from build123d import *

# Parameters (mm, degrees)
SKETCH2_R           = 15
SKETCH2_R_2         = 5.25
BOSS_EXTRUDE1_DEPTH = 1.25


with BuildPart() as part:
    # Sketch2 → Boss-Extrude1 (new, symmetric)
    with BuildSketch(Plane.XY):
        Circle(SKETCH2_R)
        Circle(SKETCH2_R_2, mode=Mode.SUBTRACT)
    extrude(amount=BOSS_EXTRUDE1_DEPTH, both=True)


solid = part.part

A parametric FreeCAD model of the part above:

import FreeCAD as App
import Part
import Sketcher
from FreeCAD import Vector

doc = App.newDocument("Part")
body = doc.addObject("PartDesign::Body", "Body")

sketch1 = body.newObject("Sketcher::SketchObject", "Sketch")
sketch1.AttachmentSupport = (doc.getObject("XY_Plane"), [""])
sketch1.MapMode = "FlatFace"
sketch1.addGeometry(Part.Circle(Vector(0, 0, 0), Vector(0, 0, 1), 15), False)
sketch1.addGeometry(Part.Circle(Vector(0, 0, 0), Vector(0, 0, 1), 5.25), False)
sketch1.addConstraint(Sketcher.Constraint("Coincident", 0, 3, -1, 1))
sketch1.addConstraint(Sketcher.Constraint("Coincident", 1, 3, -1, 1))
sketch1.addConstraint(Sketcher.Constraint("Diameter", 0, 30.0))
sketch1.addConstraint(Sketcher.Constraint("Diameter", 1, 10.5))
pad1 = body.newObject("PartDesign::Pad", "Pad")
pad1.Profile = sketch1
pad1.Length = 2.5
pad1.Midplane = True

doc.recompute()
